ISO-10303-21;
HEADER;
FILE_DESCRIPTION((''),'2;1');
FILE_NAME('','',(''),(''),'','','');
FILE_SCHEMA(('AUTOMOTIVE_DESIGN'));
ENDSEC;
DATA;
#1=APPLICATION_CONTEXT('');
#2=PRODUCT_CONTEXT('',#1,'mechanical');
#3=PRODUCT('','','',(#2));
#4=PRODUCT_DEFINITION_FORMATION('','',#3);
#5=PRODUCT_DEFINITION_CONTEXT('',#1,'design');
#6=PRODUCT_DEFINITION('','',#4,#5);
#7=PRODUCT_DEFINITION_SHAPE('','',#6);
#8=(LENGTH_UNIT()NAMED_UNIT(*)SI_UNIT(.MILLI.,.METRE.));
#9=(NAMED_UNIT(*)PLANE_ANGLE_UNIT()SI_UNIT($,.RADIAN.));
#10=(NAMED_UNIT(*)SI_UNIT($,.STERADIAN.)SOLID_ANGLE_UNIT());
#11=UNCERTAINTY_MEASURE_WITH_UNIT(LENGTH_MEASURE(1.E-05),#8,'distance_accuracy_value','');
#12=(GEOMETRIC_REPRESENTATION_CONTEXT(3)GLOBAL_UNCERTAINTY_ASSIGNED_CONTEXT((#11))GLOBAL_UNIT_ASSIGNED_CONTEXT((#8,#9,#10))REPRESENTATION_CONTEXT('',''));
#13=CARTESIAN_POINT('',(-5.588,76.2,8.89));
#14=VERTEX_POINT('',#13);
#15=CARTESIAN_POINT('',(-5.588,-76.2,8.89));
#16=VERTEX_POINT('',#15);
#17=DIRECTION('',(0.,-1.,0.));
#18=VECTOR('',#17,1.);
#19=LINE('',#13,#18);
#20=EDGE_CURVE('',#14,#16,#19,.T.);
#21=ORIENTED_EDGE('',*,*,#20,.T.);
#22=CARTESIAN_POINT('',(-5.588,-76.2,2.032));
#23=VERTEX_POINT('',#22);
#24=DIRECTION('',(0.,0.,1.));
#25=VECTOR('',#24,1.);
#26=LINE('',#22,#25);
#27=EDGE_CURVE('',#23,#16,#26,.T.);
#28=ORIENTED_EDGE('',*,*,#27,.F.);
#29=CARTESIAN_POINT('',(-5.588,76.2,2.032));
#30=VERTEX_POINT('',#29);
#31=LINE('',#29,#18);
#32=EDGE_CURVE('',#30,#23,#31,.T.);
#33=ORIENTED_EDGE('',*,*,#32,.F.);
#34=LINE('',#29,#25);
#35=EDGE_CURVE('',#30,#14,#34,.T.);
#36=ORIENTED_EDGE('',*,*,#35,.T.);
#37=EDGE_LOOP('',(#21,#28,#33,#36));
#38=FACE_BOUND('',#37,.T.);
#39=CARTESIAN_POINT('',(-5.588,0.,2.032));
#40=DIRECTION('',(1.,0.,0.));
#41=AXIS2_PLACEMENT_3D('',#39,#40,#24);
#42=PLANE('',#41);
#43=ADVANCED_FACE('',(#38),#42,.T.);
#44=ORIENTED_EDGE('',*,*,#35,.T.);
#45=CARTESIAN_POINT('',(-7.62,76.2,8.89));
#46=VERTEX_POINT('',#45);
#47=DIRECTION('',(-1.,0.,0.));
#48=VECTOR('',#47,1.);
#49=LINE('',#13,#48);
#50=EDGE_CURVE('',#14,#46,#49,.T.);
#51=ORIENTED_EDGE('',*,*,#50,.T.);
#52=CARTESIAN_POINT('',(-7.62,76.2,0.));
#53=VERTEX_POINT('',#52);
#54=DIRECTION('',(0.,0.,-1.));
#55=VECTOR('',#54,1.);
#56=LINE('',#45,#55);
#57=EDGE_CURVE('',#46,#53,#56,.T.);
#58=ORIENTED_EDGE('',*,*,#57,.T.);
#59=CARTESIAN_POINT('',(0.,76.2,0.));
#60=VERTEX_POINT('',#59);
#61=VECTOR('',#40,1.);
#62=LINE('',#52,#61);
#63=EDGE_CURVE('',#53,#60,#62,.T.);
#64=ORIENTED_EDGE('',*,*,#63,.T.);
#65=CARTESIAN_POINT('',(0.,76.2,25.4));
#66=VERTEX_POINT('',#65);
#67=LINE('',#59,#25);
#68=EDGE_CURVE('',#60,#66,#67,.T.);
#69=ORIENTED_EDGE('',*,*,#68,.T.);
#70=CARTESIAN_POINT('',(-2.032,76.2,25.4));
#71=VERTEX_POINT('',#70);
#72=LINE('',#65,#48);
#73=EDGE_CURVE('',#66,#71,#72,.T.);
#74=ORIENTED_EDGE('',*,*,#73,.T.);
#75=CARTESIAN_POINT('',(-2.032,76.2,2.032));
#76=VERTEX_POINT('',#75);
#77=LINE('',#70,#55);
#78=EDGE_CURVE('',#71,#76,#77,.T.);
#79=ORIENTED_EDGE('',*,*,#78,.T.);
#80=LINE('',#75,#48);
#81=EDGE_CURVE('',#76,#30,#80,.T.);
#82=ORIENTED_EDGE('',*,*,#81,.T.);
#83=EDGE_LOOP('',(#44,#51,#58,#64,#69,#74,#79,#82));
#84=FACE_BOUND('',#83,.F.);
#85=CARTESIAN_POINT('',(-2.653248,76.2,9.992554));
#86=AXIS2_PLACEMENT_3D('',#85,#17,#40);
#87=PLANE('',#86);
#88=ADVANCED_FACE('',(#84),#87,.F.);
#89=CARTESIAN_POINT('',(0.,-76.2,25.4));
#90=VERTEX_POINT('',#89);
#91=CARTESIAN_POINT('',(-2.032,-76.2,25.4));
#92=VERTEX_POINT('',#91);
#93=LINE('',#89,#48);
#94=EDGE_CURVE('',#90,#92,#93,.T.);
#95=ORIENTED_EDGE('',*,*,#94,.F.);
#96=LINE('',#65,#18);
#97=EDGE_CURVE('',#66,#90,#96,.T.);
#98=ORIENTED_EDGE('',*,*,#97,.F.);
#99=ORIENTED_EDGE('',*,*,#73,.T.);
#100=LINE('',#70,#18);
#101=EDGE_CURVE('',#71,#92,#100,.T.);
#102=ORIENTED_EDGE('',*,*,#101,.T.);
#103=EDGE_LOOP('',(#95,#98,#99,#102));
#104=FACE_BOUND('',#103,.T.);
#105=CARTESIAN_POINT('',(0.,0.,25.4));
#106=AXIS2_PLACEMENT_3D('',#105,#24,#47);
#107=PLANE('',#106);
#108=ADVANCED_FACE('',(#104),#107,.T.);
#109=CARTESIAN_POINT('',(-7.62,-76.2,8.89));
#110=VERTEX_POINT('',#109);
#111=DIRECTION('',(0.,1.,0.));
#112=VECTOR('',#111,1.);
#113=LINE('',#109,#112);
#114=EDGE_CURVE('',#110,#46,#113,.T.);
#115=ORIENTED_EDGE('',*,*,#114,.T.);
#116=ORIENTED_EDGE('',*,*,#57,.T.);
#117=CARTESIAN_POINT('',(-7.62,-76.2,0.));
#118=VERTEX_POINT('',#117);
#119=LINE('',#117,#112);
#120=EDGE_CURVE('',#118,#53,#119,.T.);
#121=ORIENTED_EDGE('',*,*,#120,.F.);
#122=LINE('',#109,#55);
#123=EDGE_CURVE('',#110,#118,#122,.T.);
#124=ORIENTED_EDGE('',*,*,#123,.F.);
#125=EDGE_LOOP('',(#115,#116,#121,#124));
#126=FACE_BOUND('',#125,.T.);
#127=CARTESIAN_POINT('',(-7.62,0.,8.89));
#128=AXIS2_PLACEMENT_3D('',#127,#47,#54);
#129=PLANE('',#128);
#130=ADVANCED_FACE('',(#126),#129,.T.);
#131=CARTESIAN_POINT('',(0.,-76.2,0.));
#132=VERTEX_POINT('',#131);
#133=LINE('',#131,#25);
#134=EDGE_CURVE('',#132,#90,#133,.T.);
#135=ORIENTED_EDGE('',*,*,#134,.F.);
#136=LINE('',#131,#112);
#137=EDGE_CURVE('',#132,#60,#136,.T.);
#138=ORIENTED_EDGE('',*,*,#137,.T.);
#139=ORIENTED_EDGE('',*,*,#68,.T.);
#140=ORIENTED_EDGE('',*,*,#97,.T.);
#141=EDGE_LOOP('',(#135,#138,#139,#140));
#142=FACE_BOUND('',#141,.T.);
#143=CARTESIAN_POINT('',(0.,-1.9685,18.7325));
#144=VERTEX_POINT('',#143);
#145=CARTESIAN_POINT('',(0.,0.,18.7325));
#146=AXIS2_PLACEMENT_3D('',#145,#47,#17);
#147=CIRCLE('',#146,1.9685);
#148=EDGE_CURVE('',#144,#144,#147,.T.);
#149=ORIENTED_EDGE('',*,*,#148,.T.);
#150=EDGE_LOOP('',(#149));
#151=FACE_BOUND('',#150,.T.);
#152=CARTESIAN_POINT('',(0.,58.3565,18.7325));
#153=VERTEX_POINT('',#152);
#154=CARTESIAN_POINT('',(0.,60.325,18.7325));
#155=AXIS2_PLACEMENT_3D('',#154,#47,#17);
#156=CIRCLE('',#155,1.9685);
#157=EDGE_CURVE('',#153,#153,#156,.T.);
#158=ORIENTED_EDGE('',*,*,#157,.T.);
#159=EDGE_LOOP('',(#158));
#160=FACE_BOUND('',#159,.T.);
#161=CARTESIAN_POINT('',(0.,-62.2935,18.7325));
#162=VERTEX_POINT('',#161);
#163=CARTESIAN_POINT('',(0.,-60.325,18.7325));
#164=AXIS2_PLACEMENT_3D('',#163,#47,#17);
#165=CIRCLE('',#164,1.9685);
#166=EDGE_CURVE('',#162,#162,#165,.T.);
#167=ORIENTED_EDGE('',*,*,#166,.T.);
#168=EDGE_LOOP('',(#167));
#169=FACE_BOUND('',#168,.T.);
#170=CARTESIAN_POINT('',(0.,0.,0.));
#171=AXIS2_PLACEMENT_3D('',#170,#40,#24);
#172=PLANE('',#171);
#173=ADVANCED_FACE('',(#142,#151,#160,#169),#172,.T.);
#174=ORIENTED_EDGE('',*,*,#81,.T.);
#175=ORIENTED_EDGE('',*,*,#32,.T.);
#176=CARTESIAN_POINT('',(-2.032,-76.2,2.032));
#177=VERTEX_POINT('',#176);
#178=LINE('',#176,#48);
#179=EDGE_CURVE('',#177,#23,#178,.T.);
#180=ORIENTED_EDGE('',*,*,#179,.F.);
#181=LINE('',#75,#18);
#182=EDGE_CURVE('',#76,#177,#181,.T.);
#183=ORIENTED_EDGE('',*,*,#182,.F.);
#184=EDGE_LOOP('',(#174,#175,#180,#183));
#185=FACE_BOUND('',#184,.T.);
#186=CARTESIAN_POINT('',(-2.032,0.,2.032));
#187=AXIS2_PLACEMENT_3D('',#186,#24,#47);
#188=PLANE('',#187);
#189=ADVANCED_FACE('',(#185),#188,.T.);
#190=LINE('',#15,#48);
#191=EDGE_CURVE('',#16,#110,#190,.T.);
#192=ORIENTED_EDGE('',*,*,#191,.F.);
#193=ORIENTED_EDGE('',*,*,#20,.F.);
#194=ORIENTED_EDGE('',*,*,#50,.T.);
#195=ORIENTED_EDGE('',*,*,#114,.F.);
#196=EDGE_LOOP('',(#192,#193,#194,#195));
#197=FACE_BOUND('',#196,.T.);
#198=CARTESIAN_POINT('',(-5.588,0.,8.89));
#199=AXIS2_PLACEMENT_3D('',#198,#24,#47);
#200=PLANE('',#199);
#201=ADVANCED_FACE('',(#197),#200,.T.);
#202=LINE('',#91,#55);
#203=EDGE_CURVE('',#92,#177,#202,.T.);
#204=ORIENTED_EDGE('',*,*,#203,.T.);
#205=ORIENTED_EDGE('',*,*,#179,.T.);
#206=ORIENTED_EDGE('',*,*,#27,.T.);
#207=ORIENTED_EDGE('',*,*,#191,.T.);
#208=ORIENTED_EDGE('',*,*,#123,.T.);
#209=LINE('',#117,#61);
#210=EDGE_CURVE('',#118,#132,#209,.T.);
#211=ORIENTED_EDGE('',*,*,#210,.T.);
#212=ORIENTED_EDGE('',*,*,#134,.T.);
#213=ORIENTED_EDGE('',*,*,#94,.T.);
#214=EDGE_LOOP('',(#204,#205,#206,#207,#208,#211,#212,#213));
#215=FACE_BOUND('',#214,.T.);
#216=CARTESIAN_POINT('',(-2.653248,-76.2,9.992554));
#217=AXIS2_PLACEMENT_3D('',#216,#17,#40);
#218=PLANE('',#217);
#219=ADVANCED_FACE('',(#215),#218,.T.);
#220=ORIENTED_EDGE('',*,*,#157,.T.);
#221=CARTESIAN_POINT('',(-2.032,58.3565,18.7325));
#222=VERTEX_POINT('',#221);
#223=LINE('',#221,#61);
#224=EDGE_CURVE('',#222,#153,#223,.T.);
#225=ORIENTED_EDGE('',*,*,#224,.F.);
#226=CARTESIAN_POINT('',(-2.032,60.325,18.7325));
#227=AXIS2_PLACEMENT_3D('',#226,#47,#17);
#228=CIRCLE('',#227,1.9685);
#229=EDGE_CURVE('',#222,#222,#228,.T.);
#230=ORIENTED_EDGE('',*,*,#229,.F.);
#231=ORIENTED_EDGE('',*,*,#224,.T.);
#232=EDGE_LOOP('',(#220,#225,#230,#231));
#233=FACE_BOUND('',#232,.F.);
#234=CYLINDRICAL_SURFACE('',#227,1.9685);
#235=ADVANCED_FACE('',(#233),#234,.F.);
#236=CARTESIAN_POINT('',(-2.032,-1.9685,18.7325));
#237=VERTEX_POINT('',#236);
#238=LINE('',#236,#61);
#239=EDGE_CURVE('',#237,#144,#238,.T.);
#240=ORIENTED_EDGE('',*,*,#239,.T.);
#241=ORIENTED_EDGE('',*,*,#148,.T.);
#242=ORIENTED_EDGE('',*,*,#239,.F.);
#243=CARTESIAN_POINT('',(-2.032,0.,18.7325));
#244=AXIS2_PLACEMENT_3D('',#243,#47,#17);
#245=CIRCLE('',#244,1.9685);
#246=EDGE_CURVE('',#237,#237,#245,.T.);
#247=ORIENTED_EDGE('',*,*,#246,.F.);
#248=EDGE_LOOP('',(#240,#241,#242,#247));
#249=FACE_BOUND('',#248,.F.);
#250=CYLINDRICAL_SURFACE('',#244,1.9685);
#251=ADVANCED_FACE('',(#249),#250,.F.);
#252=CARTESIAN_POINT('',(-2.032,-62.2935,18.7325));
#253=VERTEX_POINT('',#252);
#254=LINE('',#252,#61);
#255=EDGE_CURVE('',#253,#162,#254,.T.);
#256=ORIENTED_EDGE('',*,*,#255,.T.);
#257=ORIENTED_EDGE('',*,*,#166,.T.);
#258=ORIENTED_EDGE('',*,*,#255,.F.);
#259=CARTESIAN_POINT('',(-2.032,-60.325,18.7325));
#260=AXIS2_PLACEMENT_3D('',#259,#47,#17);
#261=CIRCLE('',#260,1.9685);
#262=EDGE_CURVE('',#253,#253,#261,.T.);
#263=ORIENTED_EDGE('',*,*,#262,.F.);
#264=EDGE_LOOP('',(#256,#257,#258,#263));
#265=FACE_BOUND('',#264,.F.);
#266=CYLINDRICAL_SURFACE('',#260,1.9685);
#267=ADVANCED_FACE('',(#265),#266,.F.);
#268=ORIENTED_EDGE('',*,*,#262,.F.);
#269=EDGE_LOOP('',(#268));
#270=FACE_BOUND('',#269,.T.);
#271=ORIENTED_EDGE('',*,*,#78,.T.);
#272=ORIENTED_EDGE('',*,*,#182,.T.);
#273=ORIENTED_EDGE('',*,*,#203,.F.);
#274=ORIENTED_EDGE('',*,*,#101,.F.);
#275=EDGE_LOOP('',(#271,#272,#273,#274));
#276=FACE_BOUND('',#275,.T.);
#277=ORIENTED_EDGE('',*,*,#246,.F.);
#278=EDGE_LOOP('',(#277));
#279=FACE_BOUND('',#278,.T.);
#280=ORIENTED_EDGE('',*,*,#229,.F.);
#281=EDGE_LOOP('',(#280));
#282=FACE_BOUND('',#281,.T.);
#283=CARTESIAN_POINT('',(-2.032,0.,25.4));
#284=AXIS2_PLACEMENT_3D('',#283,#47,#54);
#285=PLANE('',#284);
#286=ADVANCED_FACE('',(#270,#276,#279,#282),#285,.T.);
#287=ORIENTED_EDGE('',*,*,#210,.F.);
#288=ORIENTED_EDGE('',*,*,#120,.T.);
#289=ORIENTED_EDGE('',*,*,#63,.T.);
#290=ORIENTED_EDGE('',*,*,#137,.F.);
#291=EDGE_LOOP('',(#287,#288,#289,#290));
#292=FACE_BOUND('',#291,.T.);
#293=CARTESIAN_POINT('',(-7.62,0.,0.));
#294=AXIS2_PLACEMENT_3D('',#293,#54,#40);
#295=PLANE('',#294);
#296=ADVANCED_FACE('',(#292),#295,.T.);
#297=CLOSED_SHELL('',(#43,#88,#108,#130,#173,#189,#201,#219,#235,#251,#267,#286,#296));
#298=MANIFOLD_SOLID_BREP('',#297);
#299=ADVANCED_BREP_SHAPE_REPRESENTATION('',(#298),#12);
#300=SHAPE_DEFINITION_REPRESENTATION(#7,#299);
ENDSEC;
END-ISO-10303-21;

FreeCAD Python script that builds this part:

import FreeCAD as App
import Part
import Sketcher
from FreeCAD import Vector
Q = App.Units.Quantity

doc = App.newDocument("Part")
body = doc.addObject("PartDesign::Body", "Body")

sketch1 = body.newObject("Sketcher::SketchObject", "Sketch")
sketch1.AttachmentSupport = (doc.getObject("XZ_Plane"), [""])
sketch1.MapMode = "FlatFace"
sketch1.addGeometry(Part.LineSegment(Vector(0, 0, 0), Vector(0, 25.4, 0)), False)
sketch1.addGeometry(Part.LineSegment(Vector(0, 25.4, 0), Vector(-2, 25.4, 0)), False)
sketch1.addGeometry(Part.LineSegment(Vector(-2, 25.4, 0), Vector(-2, 2, 0)), False)
sketch1.addGeometry(Part.LineSegment(Vector(-2, 2, 0), Vector(-5.6, 2, 0)), False)
sketch1.addGeometry(Part.LineSegment(Vector(-5.6, 2, 0), Vector(-5.6, 8.9, 0)), False)
sketch1.addGeometry(Part.LineSegment(Vector(-5.6, 8.9, 0), Vector(-7.6, 8.9, 0)), False)
sketch1.addGeometry(Part.LineSegment(Vector(-7.6, 8.9, 0), Vector(-7.6, 0, 0)), False)
sketch1.addGeometry(Part.LineSegment(Vector(-7.6, 0, 0), Vector(0, 0, 0)), False)
sketch1.addConstraint(Sketcher.Constraint("Coincident", 0, 2, 1, 1))
sketch1.addConstraint(Sketcher.Constraint("Coincident", 1, 2, 2, 1))
sketch1.addConstraint(Sketcher.Constraint("Coincident", 2, 2, 3, 1))
sketch1.addConstraint(Sketcher.Constraint("Coincident", 3, 2, 4, 1))
sketch1.addConstraint(Sketcher.Constraint("Coincident", 4, 2, 5, 1))
sketch1.addConstraint(Sketcher.Constraint("Coincident", 5, 2, 6, 1))
sketch1.addConstraint(Sketcher.Constraint("Coincident", 6, 2, 7, 1))
sketch1.addConstraint(Sketcher.Constraint("Coincident", 7, 2, 0, 1))
sketch1.addConstraint(Sketcher.Constraint("Vertical", 0))
sketch1.addConstraint(Sketcher.Constraint("Horizontal", 1))
sketch1.addConstraint(Sketcher.Constraint("Vertical", 2))
sketch1.addConstraint(Sketcher.Constraint("Horizontal", 3))
sketch1.addConstraint(Sketcher.Constraint("Vertical", 4))
sketch1.addConstraint(Sketcher.Constraint("Horizontal", 5))
sketch1.addConstraint(Sketcher.Constraint("Vertical", 6))
sketch1.addConstraint(Sketcher.Constraint("Horizontal", 7))
sketch1.addConstraint(Sketcher.Constraint("Coincident", 7, 2, -1, 1))
sketch1.addConstraint(Sketcher.Constraint("Equal", 1, 5))
sketch1.addConstraint(Sketcher.Constraint("DistanceY", 0, 1, 0, 2, Q("1 in")))
sketch1.addConstraint(Sketcher.Constraint("DistanceX", 7, 1, 7, 2, Q("0.3 in")))
sketch1.addConstraint(Sketcher.Constraint("DistanceX", 1, 2, 1, 1, Q("0.08 in")))
sketch1.addConstraint(Sketcher.Constraint("DistanceY", 2, 2, 2, 1, Q("0.92 in")))
sketch1.addConstraint(Sketcher.Constraint("DistanceY", 4, 1, 4, 2, Q("0.27 in")))
pad1 = body.newObject("PartDesign::Pad", "Pad")
pad1.Profile = sketch1
pad1.Length = Q("6 in")
pad1.Midplane = True

sketch2 = body.newObject("Sketcher::SketchObject", "Sketch001")
sketch2.AttachmentSupport = (doc.getObject("YZ_Plane"), [""])
sketch2.MapMode = "FlatFace"
sketch2.AttachmentOffset = App.Placement(Vector(0, 0, -0.08 * 25.4), App.Rotation())
sketch2.addGeometry(Part.Circle(Vector(60.3, 18.7, 0), Vector(0, 0, 1), 2), False)
sketch2.addGeometry(Part.Circle(Vector(0, 18.7, 0), Vector(0, 0, 1), 2), False)
sketch2.addGeometry(Part.Circle(Vector(-60.3, 18.7, 0), Vector(0, 0, 1), 2), False)
sketch2.addConstraint(Sketcher.Constraint("Equal", 0, 1))
sketch2.addConstraint(Sketcher.Constraint("Equal", 1, 2))
sketch2.addConstraint(Sketcher.Constraint("Symmetric", 0, 3, 2, 3, -2))
sketch2.addConstraint(Sketcher.Constraint("PointOnObject", 1, 3, -2))
sketch2.addConstraint(Sketcher.Constraint("Horizontal", 0, 3, 1, 3))
sketch2.addConstraint(Sketcher.Constraint("Diameter", 0, Q("0.155 in")))
sketch2.addConstraint(Sketcher.Constraint("DistanceX", 2, 3, 0, 3, Q("4.75 in")))
sketch2.addConstraint(Sketcher.Constraint("DistanceY", -1, 1, 0, 3, Q("0.7375 in")))
pocket1 = body.newObject("PartDesign::Pocket", "Pocket")
pocket1.Profile = sketch2
pocket1.Type = "ThroughAll"
pocket1.Reversed = True

doc.recompute()
